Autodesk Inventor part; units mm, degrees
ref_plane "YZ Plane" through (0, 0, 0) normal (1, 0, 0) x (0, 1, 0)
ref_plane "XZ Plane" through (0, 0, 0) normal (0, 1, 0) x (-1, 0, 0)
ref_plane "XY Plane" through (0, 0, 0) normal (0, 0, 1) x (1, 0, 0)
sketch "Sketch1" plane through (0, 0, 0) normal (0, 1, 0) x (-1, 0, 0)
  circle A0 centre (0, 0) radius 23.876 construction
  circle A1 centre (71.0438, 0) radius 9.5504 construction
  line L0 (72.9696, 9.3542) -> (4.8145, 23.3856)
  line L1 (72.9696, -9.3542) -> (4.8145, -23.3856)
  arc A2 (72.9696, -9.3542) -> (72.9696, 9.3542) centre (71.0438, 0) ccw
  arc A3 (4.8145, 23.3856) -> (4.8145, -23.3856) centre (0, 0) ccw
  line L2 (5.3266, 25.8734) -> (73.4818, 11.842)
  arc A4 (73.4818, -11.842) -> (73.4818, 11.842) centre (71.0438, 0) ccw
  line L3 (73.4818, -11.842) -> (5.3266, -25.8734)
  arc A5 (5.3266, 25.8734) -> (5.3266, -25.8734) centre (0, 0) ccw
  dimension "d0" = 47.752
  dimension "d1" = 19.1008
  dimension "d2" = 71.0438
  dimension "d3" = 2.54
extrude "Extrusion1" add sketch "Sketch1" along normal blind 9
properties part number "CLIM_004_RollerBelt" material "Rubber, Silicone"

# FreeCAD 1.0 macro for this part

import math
import FreeCAD as App
import Part
import Sketcher
Q = App.Units.Quantity

doc = App.newDocument("Part")
params = doc.addObject("Spreadsheet::Sheet", "Params")
for row, (alias, value) in enumerate([
    ("sketch1_radius", "0.94 in"),
    ("sketch1_radius2", "0.376 in"),
    ("sketch1_radius3", "1.04 in"),
    ("pad1_length", "9 mm"),
], start=1):
    params.set(f"A{row}", alias)
    params.set(f"B{row}", "=" + value)
    params.setAlias(f"B{row}", alias)

body = doc.addObject("PartDesign::Body", "Body")

sketch1 = doc.addObject("Sketcher::SketchObject", "Sketch")
body.addObject(sketch1)
sketch1.AttachmentSupport = (doc.XZ_Plane, [""])
sketch1.MapMode = "FlatFace"
sketch1.addGeometry([
    Part.LineSegment(App.Vector(-73, 12, 0), App.Vector(-5, 26, 0)),
    Part.ArcOfCircle(Part.Circle(App.Vector(0, 0, 0), App.Vector(0, 0, 1), 26), math.radians(-102), math.radians(102)),
    Part.LineSegment(App.Vector(-5, -26, 0), App.Vector(-73, -12, 0)),
    Part.ArcOfCircle(Part.Circle(App.Vector(-71, 0, 0), App.Vector(0, 0, 1), 12), math.radians(102), math.radians(258)),
    Part.LineSegment(App.Vector(-5, 23, 0), App.Vector(-73, 9, 0)),
    Part.ArcOfCircle(Part.Circle(App.Vector(-71, 0, 0), App.Vector(0, 0, 1), 10), math.radians(102), math.radians(258)),
    Part.LineSegment(App.Vector(-73, -9, 0), App.Vector(-5, -23, 0)),
    Part.ArcOfCircle(Part.Circle(App.Vector(0, 0, 0), App.Vector(0, 0, 1), 24), math.radians(-102), math.radians(102)),
], False)
sketch1.addConstraint([
    Sketcher.Constraint("Tangent", 0, 2, 1, 2),
    Sketcher.Constraint("Tangent", 1, 1, 2, 1),
    Sketcher.Constraint("Tangent", 2, 2, 3, 2),
    Sketcher.Constraint("Tangent", 3, 1, 0, 1),
    Sketcher.Constraint("Tangent", 4, 2, 5, 1),
    Sketcher.Constraint("Tangent", 5, 2, 6, 1),
    Sketcher.Constraint("Tangent", 6, 2, 7, 1),
    Sketcher.Constraint("Tangent", 7, 2, 4, 1),
    Sketcher.Constraint("Coincident", 1, 3, -1, 1),
    Sketcher.Constraint("Coincident", 7, 3, -1, 1),
    Sketcher.Constraint("Coincident", 5, 3, 3, 3),
    Sketcher.Constraint("PointOnObject", 3, 3, -1),
    Sketcher.Constraint("Parallel", 0, 4),
    Sketcher.Constraint("Radius", 7, Q("0.94 in")),
    Sketcher.Constraint("Radius", 5, Q("0.376 in")),
    Sketcher.Constraint("Radius", 1, Q("1.04 in")),
    Sketcher.Constraint("DistanceX", 3, 3, -1, 1, Q("2.797 in")),
])
sketch1.setExpression("Constraints[13]", "Params.sketch1_radius")
sketch1.setExpression("Constraints[14]", "Params.sketch1_radius2")
sketch1.setExpression("Constraints[15]", "Params.sketch1_radius3")
pad1 = doc.addObject("PartDesign::Pad", "Pad")
body.addObject(pad1)
pad1.Profile = sketch1
pad1.setExpression("Length", "Params.pad1_length")
pad1.Reversed = True

doc.recompute()
